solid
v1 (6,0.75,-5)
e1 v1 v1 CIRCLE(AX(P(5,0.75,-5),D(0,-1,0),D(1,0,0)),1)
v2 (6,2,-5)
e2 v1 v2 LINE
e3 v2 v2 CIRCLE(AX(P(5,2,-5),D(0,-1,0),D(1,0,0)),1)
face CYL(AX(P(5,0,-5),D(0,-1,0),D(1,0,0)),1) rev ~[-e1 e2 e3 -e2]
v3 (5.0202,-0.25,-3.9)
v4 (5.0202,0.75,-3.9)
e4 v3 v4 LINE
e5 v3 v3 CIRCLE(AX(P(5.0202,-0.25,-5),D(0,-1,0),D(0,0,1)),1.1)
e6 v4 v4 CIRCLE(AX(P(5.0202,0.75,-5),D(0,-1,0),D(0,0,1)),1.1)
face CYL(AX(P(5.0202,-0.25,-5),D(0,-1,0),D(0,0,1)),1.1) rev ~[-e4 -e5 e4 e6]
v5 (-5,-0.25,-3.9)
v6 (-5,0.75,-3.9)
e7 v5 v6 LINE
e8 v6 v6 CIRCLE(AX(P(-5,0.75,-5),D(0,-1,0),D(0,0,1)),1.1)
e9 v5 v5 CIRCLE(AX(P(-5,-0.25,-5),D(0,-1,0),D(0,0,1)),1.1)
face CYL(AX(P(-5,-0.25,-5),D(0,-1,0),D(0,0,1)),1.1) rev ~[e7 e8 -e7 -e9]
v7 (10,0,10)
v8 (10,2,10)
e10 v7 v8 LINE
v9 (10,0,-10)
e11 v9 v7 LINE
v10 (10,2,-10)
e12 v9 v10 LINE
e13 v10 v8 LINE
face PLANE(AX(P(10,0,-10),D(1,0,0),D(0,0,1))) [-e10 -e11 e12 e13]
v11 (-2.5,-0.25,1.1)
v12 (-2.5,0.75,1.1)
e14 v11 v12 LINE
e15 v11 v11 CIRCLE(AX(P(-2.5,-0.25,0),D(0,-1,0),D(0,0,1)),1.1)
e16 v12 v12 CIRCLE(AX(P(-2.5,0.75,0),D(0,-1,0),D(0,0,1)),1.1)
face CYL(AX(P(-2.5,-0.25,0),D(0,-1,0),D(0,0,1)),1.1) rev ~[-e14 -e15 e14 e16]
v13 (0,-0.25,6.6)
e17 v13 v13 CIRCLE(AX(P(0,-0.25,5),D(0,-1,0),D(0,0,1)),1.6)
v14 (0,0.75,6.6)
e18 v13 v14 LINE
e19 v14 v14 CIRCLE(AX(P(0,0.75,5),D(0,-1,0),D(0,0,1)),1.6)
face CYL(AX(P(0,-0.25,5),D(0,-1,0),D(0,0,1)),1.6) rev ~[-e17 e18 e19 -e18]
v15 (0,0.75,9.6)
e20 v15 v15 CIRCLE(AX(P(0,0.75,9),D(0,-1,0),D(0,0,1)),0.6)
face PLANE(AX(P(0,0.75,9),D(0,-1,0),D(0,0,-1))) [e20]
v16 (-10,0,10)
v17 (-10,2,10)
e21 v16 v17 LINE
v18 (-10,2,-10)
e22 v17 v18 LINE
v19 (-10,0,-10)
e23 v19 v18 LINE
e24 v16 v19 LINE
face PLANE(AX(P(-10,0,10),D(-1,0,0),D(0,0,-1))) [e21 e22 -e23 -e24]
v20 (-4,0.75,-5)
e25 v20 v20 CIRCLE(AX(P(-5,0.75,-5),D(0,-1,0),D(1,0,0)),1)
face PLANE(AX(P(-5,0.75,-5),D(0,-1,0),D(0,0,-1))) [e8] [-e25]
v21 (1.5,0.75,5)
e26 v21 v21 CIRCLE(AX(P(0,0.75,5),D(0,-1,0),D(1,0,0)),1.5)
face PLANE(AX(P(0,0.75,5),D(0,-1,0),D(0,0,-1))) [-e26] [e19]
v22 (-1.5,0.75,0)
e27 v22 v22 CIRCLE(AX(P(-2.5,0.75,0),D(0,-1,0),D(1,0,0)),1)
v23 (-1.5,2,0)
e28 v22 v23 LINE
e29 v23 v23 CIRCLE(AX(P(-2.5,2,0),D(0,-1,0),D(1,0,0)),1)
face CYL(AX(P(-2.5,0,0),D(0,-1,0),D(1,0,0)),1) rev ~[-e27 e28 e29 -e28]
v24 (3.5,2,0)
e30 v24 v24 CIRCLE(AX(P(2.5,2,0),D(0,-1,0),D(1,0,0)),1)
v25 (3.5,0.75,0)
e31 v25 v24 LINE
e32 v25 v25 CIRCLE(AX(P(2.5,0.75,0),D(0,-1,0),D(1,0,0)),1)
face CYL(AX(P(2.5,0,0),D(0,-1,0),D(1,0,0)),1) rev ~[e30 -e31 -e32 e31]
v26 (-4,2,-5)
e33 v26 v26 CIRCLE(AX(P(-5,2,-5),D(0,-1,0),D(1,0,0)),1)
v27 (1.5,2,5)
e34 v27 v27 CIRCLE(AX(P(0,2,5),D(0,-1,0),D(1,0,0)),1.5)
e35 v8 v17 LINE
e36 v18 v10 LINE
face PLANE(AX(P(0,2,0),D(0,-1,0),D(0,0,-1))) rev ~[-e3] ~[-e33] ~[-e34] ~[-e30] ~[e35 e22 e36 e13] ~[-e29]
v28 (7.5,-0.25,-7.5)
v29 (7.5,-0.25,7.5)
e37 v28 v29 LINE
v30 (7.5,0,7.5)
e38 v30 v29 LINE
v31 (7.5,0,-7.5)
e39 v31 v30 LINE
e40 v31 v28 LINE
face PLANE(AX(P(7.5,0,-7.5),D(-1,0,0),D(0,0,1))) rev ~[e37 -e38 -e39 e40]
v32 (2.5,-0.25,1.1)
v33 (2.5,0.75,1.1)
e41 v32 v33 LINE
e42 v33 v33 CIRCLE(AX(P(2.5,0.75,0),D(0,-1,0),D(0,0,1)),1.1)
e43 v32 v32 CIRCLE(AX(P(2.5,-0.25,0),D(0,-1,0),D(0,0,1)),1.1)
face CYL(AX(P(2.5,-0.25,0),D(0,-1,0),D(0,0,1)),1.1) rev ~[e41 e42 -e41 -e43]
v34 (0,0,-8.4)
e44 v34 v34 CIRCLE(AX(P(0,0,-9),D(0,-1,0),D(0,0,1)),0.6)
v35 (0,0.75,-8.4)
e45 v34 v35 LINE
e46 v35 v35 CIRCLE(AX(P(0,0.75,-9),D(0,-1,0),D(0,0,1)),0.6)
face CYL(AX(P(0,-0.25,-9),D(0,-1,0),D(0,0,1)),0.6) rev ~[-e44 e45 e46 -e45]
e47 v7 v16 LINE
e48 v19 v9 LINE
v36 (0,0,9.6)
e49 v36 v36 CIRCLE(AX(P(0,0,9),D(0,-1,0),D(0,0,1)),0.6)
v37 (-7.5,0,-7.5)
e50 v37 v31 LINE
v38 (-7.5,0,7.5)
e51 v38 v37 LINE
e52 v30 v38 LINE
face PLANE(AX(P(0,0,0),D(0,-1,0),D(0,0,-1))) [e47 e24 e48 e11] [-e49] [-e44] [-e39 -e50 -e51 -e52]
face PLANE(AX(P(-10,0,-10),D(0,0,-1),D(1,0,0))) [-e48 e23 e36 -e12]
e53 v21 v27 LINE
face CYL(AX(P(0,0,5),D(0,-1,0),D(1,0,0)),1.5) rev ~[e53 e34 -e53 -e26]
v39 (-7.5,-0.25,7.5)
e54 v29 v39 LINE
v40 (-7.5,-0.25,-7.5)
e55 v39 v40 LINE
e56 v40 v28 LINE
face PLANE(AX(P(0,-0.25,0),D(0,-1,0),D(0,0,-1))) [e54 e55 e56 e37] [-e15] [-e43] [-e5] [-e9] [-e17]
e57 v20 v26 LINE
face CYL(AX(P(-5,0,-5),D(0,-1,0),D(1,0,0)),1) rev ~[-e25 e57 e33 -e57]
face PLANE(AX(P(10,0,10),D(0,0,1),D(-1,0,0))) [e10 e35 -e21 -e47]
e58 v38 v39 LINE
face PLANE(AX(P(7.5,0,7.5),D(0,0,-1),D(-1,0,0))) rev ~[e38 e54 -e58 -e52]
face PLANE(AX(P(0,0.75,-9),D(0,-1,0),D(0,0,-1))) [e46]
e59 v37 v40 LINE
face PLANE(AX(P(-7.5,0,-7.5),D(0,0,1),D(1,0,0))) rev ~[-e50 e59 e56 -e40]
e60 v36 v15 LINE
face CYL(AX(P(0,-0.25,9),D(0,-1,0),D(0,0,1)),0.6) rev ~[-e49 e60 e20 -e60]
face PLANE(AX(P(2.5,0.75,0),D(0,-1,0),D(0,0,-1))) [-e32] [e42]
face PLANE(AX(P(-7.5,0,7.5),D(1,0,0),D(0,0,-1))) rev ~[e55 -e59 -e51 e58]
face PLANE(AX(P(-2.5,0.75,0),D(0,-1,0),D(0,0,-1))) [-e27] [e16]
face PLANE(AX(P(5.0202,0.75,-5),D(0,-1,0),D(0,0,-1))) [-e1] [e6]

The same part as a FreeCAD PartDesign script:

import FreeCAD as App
import Part
import Sketcher


def add_polygon(sketch, points):
    """Adds a closed chain of lines whose ends are joined by coincident constraints."""
    first, n = sketch.GeometryCount, len(points)
    for a, b in zip(points, points[1:] + points[:1]):
        sketch.addGeometry(Part.LineSegment(App.Vector(*a, 0), App.Vector(*b, 0)), False)
    for i in range(n):
        sketch.addConstraint(Sketcher.Constraint("Coincident", first + i, 2, first + (i + 1) % n, 1))

doc = App.newDocument("Part")
body = doc.addObject("PartDesign::Body", "Body")

# Sketch on XZ plane
sketch1 = body.newObject("Sketcher::SketchObject", "Sketch")
sketch1.AttachmentSupport = (doc.getObject("XZ_Plane"), [""])
sketch1.MapMode = "FlatFace"
add_polygon(sketch1, [(10, -10), (10, 10), (-10, 10), (-10, -10)])  # lines 0-3
sketch1.addGeometry(Part.Circle(App.Vector(-5, -5, 0), App.Vector(0, 0, 1), 1), False)  # 4
sketch1.addGeometry(Part.Circle(App.Vector(5, -5, 0), App.Vector(0, 0, 1), 1), False)  # 5
sketch1.addGeometry(Part.Circle(App.Vector(-2.5, 0, 0), App.Vector(0, 0, 1), 1), False)  # 6
sketch1.addGeometry(Part.Circle(App.Vector(2.5, 0, 0), App.Vector(0, 0, 1), 1), False)  # 7
sketch1.addGeometry(Part.Circle(App.Vector(0, 5, 0), App.Vector(0, 0, 1), 1.5), False)  # 8
sketch1.addConstraint(Sketcher.Constraint("Vertical", 0))
sketch1.addConstraint(Sketcher.Constraint("Horizontal", 1))
sketch1.addConstraint(Sketcher.Constraint("Vertical", 2))
sketch1.addConstraint(Sketcher.Constraint("Horizontal", 3))
sketch1.addConstraint(Sketcher.Constraint("Equal", 4, 5))
sketch1.addConstraint(Sketcher.Constraint("Equal", 5, 6))
sketch1.addConstraint(Sketcher.Constraint("Equal", 6, 7))
sketch1.addConstraint(Sketcher.Constraint("Symmetric", 6, 3, 7, 3, -1, 1))
sketch1.addConstraint(Sketcher.Constraint("Symmetric", 0, 2, 2, 2, -1, 1))
sketch1.addConstraint(Sketcher.Constraint("Symmetric", 4, 3, 5, 3, -2))
sketch1.addConstraint(Sketcher.Constraint("PointOnObject", 6, 3, -1))
sketch1.addConstraint(Sketcher.Constraint("PointOnObject", 8, 3, -2))
sketch1.addConstraint(Sketcher.Constraint("Equal", 3, 0))
sketch1.addConstraint(Sketcher.Constraint("Diameter", 4, 2.0))
sketch1.addConstraint(Sketcher.Constraint("Diameter", 8, 3.0))
sketch1.addConstraint(Sketcher.Constraint("DistanceX", 1, 2, 1, 1, 20.0))
sketch1.addConstraint(Sketcher.Constraint("DistanceX", 4, 3, -1, 1, 5.0))
sketch1.addConstraint(Sketcher.Constraint("DistanceY", 4, 3, -1, 1, 5.0))
sketch1.addConstraint(Sketcher.Constraint("DistanceY", -1, 1, 8, 3, 5.0))
sketch1.addConstraint(Sketcher.Constraint("DistanceX", 6, 3, 7, 3, 5.0))
pad1 = body.newObject("PartDesign::Pad", "Pad")
pad1.Profile = sketch1
pad1.Length = 2
pad1.Reversed = True

# Sketch on XZ plane
sketch2 = body.newObject("Sketcher::SketchObject", "Sketch001")
sketch2.AttachmentSupport = (doc.getObject("XZ_Plane"), [""])
sketch2.MapMode = "FlatFace"
add_polygon(sketch2, [(7.5, -7.5), (7.5, 7.5), (-7.5, 7.5), (-7.5, -7.5)])  # lines 0-3
sketch2.addGeometry(Part.Circle(App.Vector(-5, -5, 0), App.Vector(0, 0, 1), 1), False)  # 4
sketch2.addGeometry(Part.Circle(App.Vector(5, -5, 0), App.Vector(0, 0, 1), 1), False)  # 5
sketch2.addGeometry(Part.Circle(App.Vector(-2.5, 0, 0), App.Vector(0, 0, 1), 1), False)  # 6
sketch2.addGeometry(Part.Circle(App.Vector(2.5, 0, 0), App.Vector(0, 0, 1), 1), False)  # 7
sketch2.addGeometry(Part.Circle(App.Vector(0, 5, 0), App.Vector(0, 0, 1), 1.5), False)  # 8
sketch2.addConstraint(Sketcher.Constraint("Vertical", 0))
sketch2.addConstraint(Sketcher.Constraint("Horizontal", 1))
sketch2.addConstraint(Sketcher.Constraint("Vertical", 2))
sketch2.addConstraint(Sketcher.Constraint("Horizontal", 3))
sketch2.addConstraint(Sketcher.Constraint("Equal", 4, 5))
sketch2.addConstraint(Sketcher.Constraint("Equal", 5, 6))
sketch2.addConstraint(Sketcher.Constraint("Equal", 6, 7))
sketch2.addConstraint(Sketcher.Constraint("Symmetric", 6, 3, 7, 3, -1, 1))
sketch2.addConstraint(Sketcher.Constraint("Symmetric", 0, 2, 2, 2, -1, 1))
sketch2.addConstraint(Sketcher.Constraint("Symmetric", 4, 3, 5, 3, -2))
sketch2.addConstraint(Sketcher.Constraint("PointOnObject", 6, 3, -1))
sketch2.addConstraint(Sketcher.Constraint("PointOnObject", 8, 3, -2))
sketch2.addConstraint(Sketcher.Constraint("Equal", 3, 0))
sketch2.addConstraint(Sketcher.Constraint("Diameter", 4, 2.0))
sketch2.addConstraint(Sketcher.Constraint("Diameter", 8, 3.0))
sketch2.addConstraint(Sketcher.Constraint("DistanceX", 1, 2, 1, 1, 15.0))
sketch2.addConstraint(Sketcher.Constraint("DistanceX", 4, 3, -1, 1, 5.0))
sketch2.addConstraint(Sketcher.Constraint("DistanceY", 4, 3, -1, 1, 5.0))
sketch2.addConstraint(Sketcher.Constraint("DistanceY", -1, 1, 8, 3, 5.0))
sketch2.addConstraint(Sketcher.Constraint("DistanceX", 6, 3, 7, 3, 5.0))
pad2 = body.newObject("PartDesign::Pad", "Pad001")
pad2.Profile = sketch2
pad2.Length = 0.25

# Sketch on XZ plane
sketch3 = body.newObject("Sketcher::SketchObject", "Sketch002")
sketch3.AttachmentSupport = (doc.getObject("XZ_Plane"), [""])
sketch3.MapMode = "FlatFace"
sketch3.AttachmentOffset = App.Placement(App.Vector(0, 0, 0.25), App.Rotation())
sketch3.addGeometry(Part.Circle(App.Vector(-5, -5, 0), App.Vector(0, 0, 1), 1.1), False)
sketch3.addGeometry(Part.Circle(App.Vector(-2.5, 0, 0), App.Vector(0, 0, 1), 1.1), False)
sketch3.addGeometry(Part.Circle(App.Vector(2.5, 0, 0), App.Vector(0, 0, 1), 1.1), False)
sketch3.addGeometry(Part.Circle(App.Vector(5, -5, 0), App.Vector(0, 0, 1), 1.1), False)
sketch3.addGeometry(Part.Circle(App.Vector(0, 5, 0), App.Vector(0, 0, 1), 1.6), False)
sketch3.addConstraint(Sketcher.Constraint("Equal", 0, 1))
sketch3.addConstraint(Sketcher.Constraint("Equal", 1, 2))
sketch3.addConstraint(Sketcher.Constraint("Equal", 2, 3))
sketch3.addConstraint(Sketcher.Constraint("Symmetric", 1, 3, 2, 3, -1, 1))
sketch3.addConstraint(Sketcher.Constraint("PointOnObject", 1, 3, -1))
sketch3.addConstraint(Sketcher.Constraint("PointOnObject", 4, 3, -2))
sketch3.addConstraint(Sketcher.Constraint("Horizontal", 0, 3, 3, 3))
sketch3.addConstraint(Sketcher.Constraint("Diameter", 0, 2.2))
sketch3.addConstraint(Sketcher.Constraint("Diameter", 4, 3.2))
sketch3.addConstraint(Sketcher.Constraint("DistanceX", 0, 3, -1, 1, 5.0))
sketch3.addConstraint(Sketcher.Constraint("DistanceY", 0, 3, -1, 1, 5.0))
sketch3.addConstraint(Sketcher.Constraint("DistanceY", -1, 1, 4, 3, 5.0))
sketch3.addConstraint(Sketcher.Constraint("DistanceX", 1, 3, 2, 3, 5.0))
sketch3.addConstraint(Sketcher.Constraint("DistanceX", -1, 1, 3, 3, 5.0202))
pocket1 = body.newObject("PartDesign::Pocket", "Pocket")
pocket1.Profile = sketch3
pocket1.Length = 1

# Sketch on XZ plane
sketch4 = body.newObject("Sketcher::SketchObject", "Sketch003")
sketch4.AttachmentSupport = (doc.getObject("XZ_Plane"), [""])
sketch4.MapMode = "FlatFace"
sketch4.AttachmentOffset = App.Placement(App.Vector(0, 0, 0.25), App.Rotation())
sketch4.addGeometry(Part.Circle(App.Vector(0, -9, 0), App.Vector(0, 0, 1), 0.6), False)
sketch4.addGeometry(Part.Circle(App.Vector(0, 9, 0), App.Vector(0, 0, 1), 0.6), False)
sketch4.addConstraint(Sketcher.Constraint("Equal", 0, 1))
sketch4.addConstraint(Sketcher.Constraint("Symmetric", 0, 3, 1, 3, -1, 1))
sketch4.addConstraint(Sketcher.Constraint("PointOnObject", 0, 3, -2))
sketch4.addConstraint(Sketcher.Constraint("Diameter", 0, 1.2))
sketch4.addConstraint(Sketcher.Constraint("DistanceY", 0, 3, -1, 1, 9.0))
pocket2 = body.newObject("PartDesign::Pocket", "Pocket001")
pocket2.Profile = sketch4
pocket2.Length = 1

doc.recompute()
